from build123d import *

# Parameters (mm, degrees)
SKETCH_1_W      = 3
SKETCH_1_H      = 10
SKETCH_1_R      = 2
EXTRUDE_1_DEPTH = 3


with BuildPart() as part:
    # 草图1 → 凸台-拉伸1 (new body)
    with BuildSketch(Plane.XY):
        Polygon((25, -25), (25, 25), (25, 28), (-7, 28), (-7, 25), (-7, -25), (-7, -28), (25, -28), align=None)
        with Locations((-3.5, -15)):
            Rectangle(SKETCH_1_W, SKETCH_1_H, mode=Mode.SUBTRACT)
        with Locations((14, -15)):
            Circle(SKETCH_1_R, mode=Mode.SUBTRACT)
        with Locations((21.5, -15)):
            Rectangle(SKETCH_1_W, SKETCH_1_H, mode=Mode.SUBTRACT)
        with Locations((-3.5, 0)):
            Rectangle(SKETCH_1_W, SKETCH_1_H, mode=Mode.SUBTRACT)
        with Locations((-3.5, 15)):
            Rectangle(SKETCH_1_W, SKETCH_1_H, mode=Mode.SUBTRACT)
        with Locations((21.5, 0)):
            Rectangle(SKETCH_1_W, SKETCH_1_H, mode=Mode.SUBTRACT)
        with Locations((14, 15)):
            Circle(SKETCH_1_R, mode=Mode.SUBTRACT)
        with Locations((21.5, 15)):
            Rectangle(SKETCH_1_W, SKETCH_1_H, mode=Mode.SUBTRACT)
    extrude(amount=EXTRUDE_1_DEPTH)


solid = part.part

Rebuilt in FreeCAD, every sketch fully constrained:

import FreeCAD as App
import Part
import Sketcher


def add_polygon(sketch, points):
    """Adds a closed chain of lines whose ends are joined by coincident constraints."""
    first, n = sketch.GeometryCount, len(points)
    for a, b in zip(points, points[1:] + points[:1]):
        sketch.addGeometry(Part.LineSegment(App.Vector(*a, 0), App.Vector(*b, 0)), False)
    for i in range(n):
        sketch.addConstraint(Sketcher.Constraint("Coincident", first + i, 2, first + (i + 1) % n, 1))

doc = App.newDocument("Part")
body = doc.addObject("PartDesign::Body", "Body")

# Sketch on XY plane
sketch1 = doc.addObject("Sketcher::SketchObject", "Sketch")
body.addObject(sketch1)
sketch1.AttachmentSupport = (doc.XY_Plane, [""])
sketch1.MapMode = "FlatFace"
add_polygon(sketch1, [(25, 28), (-7, 28), (-7, -28), (25, -28)])  # lines 0-3
add_polygon(sketch1, [(-2, -20), (-5, -20), (-5, -10), (-2, -10)])  # lines 4-7
sketch1.addGeometry(Part.Circle(App.Vector(14, -15, 0), App.Vector(0, 0, 1), 2), False)  # 8
add_polygon(sketch1, [(23, -20), (20, -20), (20, -10), (23, -10)])  # lines 9-12
add_polygon(sketch1, [(-2, -5), (-5, -5), (-5, 5), (-2, 5)])  # lines 13-16
add_polygon(sketch1, [(-2, 10), (-5, 10), (-5, 20), (-2, 20)])  # lines 17-20
add_polygon(sketch1, [(23, -5), (20, -5), (20, 5), (23, 5)])  # lines 21-24
sketch1.addGeometry(Part.Circle(App.Vector(14, 15, 0), App.Vector(0, 0, 1), 2), False)  # 25
add_polygon(sketch1, [(23, 10), (20, 10), (20, 20), (23, 20)])  # lines 26-29
sketch1.addConstraint([
    Sketcher.Constraint("Horizontal", 0),
    Sketcher.Constraint("Vertical", 1),
    Sketcher.Constraint("Horizontal", 2),
    Sketcher.Constraint("Vertical", 3),
    Sketcher.Constraint("Horizontal", 4),
    Sketcher.Constraint("Vertical", 5),
    Sketcher.Constraint("Horizontal", 6),
    Sketcher.Constraint("Vertical", 7),
    Sketcher.Constraint("Horizontal", 9),
    Sketcher.Constraint("Vertical", 10),
    Sketcher.Constraint("Horizontal", 11),
    Sketcher.Constraint("Vertical", 12),
    Sketcher.Constraint("Horizontal", 13),
    Sketcher.Constraint("Vertical", 14),
    Sketcher.Constraint("Horizontal", 15),
    Sketcher.Constraint("Vertical", 16),
    Sketcher.Constraint("Horizontal", 17),
    Sketcher.Constraint("Vertical", 18),
    Sketcher.Constraint("Horizontal", 19),
    Sketcher.Constraint("Vertical", 20),
    Sketcher.Constraint("Horizontal", 21),
    Sketcher.Constraint("Vertical", 22),
    Sketcher.Constraint("Horizontal", 23),
    Sketcher.Constraint("Vertical", 24),
    Sketcher.Constraint("Horizontal", 26),
    Sketcher.Constraint("Vertical", 27),
    Sketcher.Constraint("Horizontal", 28),
    Sketcher.Constraint("Vertical", 29),
    Sketcher.Constraint("Equal", 8, 25),
    Sketcher.Constraint("Symmetric", 8, 3, 25, 3, -1),
    Sketcher.Constraint("Symmetric", 5, 2, 17, 2, -1),
    Sketcher.Constraint("Symmetric", 7, 2, 19, 2, -1),
    Sketcher.Constraint("Symmetric", 10, 2, 26, 2, -1),
    Sketcher.Constraint("Symmetric", 12, 2, 28, 2, -1),
    Sketcher.Constraint("Horizontal", 7, 2, 9, 2),
    Sketcher.Constraint("Horizontal", 6, 2, 10, 2),
    Sketcher.Constraint("Horizontal", 16, 2, 21, 2),
    Sketcher.Constraint("Horizontal", 15, 2, 22, 2),
    Sketcher.Constraint("Vertical", 5, 2, 13, 2),
    Sketcher.Constraint("Vertical", 7, 2, 15, 2),
    Sketcher.Constraint("Vertical", 10, 2, 21, 2),
    Sketcher.Constraint("Vertical", 12, 2, 23, 2),
    Sketcher.Constraint("Equal", 6, 9),
    Sketcher.Constraint("Equal", 12, 14),
    Sketcher.Constraint("Diameter", 8, 4.0),
    Sketcher.Constraint("DistanceX", 0, 2, 0, 1, 32.0),
    Sketcher.Constraint("DistanceX", 4, 2, 4, 1, 3.0),
    Sketcher.Constraint("DistanceY", 1, 2, 1, 1, 56.0),
    Sketcher.Constraint("DistanceY", 5, 1, 5, 2, 10.0),
    Sketcher.Constraint("DistanceX", -1, 1, 8, 3, 14.0),
    Sketcher.Constraint("DistanceY", 8, 3, -1, 1, 15.0),
    Sketcher.Constraint("DistanceX", 0, 2, -1, 1, 7.0),
    Sketcher.Constraint("DistanceY", -1, 1, 0, 2, 28.0),
    Sketcher.Constraint("DistanceX", 4, 2, -1, 1, 5.0),
    Sketcher.Constraint("DistanceY", 4, 2, -1, 1, 20.0),
    Sketcher.Constraint("DistanceX", -1, 1, 9, 2, 20.0),
    Sketcher.Constraint("DistanceY", 13, 2, -1, 1, 5.0),
])
pad1 = doc.addObject("PartDesign::Pad", "Pad")
body.addObject(pad1)
pad1.Profile = sketch1
pad1.Length = 3

doc.recompute()
